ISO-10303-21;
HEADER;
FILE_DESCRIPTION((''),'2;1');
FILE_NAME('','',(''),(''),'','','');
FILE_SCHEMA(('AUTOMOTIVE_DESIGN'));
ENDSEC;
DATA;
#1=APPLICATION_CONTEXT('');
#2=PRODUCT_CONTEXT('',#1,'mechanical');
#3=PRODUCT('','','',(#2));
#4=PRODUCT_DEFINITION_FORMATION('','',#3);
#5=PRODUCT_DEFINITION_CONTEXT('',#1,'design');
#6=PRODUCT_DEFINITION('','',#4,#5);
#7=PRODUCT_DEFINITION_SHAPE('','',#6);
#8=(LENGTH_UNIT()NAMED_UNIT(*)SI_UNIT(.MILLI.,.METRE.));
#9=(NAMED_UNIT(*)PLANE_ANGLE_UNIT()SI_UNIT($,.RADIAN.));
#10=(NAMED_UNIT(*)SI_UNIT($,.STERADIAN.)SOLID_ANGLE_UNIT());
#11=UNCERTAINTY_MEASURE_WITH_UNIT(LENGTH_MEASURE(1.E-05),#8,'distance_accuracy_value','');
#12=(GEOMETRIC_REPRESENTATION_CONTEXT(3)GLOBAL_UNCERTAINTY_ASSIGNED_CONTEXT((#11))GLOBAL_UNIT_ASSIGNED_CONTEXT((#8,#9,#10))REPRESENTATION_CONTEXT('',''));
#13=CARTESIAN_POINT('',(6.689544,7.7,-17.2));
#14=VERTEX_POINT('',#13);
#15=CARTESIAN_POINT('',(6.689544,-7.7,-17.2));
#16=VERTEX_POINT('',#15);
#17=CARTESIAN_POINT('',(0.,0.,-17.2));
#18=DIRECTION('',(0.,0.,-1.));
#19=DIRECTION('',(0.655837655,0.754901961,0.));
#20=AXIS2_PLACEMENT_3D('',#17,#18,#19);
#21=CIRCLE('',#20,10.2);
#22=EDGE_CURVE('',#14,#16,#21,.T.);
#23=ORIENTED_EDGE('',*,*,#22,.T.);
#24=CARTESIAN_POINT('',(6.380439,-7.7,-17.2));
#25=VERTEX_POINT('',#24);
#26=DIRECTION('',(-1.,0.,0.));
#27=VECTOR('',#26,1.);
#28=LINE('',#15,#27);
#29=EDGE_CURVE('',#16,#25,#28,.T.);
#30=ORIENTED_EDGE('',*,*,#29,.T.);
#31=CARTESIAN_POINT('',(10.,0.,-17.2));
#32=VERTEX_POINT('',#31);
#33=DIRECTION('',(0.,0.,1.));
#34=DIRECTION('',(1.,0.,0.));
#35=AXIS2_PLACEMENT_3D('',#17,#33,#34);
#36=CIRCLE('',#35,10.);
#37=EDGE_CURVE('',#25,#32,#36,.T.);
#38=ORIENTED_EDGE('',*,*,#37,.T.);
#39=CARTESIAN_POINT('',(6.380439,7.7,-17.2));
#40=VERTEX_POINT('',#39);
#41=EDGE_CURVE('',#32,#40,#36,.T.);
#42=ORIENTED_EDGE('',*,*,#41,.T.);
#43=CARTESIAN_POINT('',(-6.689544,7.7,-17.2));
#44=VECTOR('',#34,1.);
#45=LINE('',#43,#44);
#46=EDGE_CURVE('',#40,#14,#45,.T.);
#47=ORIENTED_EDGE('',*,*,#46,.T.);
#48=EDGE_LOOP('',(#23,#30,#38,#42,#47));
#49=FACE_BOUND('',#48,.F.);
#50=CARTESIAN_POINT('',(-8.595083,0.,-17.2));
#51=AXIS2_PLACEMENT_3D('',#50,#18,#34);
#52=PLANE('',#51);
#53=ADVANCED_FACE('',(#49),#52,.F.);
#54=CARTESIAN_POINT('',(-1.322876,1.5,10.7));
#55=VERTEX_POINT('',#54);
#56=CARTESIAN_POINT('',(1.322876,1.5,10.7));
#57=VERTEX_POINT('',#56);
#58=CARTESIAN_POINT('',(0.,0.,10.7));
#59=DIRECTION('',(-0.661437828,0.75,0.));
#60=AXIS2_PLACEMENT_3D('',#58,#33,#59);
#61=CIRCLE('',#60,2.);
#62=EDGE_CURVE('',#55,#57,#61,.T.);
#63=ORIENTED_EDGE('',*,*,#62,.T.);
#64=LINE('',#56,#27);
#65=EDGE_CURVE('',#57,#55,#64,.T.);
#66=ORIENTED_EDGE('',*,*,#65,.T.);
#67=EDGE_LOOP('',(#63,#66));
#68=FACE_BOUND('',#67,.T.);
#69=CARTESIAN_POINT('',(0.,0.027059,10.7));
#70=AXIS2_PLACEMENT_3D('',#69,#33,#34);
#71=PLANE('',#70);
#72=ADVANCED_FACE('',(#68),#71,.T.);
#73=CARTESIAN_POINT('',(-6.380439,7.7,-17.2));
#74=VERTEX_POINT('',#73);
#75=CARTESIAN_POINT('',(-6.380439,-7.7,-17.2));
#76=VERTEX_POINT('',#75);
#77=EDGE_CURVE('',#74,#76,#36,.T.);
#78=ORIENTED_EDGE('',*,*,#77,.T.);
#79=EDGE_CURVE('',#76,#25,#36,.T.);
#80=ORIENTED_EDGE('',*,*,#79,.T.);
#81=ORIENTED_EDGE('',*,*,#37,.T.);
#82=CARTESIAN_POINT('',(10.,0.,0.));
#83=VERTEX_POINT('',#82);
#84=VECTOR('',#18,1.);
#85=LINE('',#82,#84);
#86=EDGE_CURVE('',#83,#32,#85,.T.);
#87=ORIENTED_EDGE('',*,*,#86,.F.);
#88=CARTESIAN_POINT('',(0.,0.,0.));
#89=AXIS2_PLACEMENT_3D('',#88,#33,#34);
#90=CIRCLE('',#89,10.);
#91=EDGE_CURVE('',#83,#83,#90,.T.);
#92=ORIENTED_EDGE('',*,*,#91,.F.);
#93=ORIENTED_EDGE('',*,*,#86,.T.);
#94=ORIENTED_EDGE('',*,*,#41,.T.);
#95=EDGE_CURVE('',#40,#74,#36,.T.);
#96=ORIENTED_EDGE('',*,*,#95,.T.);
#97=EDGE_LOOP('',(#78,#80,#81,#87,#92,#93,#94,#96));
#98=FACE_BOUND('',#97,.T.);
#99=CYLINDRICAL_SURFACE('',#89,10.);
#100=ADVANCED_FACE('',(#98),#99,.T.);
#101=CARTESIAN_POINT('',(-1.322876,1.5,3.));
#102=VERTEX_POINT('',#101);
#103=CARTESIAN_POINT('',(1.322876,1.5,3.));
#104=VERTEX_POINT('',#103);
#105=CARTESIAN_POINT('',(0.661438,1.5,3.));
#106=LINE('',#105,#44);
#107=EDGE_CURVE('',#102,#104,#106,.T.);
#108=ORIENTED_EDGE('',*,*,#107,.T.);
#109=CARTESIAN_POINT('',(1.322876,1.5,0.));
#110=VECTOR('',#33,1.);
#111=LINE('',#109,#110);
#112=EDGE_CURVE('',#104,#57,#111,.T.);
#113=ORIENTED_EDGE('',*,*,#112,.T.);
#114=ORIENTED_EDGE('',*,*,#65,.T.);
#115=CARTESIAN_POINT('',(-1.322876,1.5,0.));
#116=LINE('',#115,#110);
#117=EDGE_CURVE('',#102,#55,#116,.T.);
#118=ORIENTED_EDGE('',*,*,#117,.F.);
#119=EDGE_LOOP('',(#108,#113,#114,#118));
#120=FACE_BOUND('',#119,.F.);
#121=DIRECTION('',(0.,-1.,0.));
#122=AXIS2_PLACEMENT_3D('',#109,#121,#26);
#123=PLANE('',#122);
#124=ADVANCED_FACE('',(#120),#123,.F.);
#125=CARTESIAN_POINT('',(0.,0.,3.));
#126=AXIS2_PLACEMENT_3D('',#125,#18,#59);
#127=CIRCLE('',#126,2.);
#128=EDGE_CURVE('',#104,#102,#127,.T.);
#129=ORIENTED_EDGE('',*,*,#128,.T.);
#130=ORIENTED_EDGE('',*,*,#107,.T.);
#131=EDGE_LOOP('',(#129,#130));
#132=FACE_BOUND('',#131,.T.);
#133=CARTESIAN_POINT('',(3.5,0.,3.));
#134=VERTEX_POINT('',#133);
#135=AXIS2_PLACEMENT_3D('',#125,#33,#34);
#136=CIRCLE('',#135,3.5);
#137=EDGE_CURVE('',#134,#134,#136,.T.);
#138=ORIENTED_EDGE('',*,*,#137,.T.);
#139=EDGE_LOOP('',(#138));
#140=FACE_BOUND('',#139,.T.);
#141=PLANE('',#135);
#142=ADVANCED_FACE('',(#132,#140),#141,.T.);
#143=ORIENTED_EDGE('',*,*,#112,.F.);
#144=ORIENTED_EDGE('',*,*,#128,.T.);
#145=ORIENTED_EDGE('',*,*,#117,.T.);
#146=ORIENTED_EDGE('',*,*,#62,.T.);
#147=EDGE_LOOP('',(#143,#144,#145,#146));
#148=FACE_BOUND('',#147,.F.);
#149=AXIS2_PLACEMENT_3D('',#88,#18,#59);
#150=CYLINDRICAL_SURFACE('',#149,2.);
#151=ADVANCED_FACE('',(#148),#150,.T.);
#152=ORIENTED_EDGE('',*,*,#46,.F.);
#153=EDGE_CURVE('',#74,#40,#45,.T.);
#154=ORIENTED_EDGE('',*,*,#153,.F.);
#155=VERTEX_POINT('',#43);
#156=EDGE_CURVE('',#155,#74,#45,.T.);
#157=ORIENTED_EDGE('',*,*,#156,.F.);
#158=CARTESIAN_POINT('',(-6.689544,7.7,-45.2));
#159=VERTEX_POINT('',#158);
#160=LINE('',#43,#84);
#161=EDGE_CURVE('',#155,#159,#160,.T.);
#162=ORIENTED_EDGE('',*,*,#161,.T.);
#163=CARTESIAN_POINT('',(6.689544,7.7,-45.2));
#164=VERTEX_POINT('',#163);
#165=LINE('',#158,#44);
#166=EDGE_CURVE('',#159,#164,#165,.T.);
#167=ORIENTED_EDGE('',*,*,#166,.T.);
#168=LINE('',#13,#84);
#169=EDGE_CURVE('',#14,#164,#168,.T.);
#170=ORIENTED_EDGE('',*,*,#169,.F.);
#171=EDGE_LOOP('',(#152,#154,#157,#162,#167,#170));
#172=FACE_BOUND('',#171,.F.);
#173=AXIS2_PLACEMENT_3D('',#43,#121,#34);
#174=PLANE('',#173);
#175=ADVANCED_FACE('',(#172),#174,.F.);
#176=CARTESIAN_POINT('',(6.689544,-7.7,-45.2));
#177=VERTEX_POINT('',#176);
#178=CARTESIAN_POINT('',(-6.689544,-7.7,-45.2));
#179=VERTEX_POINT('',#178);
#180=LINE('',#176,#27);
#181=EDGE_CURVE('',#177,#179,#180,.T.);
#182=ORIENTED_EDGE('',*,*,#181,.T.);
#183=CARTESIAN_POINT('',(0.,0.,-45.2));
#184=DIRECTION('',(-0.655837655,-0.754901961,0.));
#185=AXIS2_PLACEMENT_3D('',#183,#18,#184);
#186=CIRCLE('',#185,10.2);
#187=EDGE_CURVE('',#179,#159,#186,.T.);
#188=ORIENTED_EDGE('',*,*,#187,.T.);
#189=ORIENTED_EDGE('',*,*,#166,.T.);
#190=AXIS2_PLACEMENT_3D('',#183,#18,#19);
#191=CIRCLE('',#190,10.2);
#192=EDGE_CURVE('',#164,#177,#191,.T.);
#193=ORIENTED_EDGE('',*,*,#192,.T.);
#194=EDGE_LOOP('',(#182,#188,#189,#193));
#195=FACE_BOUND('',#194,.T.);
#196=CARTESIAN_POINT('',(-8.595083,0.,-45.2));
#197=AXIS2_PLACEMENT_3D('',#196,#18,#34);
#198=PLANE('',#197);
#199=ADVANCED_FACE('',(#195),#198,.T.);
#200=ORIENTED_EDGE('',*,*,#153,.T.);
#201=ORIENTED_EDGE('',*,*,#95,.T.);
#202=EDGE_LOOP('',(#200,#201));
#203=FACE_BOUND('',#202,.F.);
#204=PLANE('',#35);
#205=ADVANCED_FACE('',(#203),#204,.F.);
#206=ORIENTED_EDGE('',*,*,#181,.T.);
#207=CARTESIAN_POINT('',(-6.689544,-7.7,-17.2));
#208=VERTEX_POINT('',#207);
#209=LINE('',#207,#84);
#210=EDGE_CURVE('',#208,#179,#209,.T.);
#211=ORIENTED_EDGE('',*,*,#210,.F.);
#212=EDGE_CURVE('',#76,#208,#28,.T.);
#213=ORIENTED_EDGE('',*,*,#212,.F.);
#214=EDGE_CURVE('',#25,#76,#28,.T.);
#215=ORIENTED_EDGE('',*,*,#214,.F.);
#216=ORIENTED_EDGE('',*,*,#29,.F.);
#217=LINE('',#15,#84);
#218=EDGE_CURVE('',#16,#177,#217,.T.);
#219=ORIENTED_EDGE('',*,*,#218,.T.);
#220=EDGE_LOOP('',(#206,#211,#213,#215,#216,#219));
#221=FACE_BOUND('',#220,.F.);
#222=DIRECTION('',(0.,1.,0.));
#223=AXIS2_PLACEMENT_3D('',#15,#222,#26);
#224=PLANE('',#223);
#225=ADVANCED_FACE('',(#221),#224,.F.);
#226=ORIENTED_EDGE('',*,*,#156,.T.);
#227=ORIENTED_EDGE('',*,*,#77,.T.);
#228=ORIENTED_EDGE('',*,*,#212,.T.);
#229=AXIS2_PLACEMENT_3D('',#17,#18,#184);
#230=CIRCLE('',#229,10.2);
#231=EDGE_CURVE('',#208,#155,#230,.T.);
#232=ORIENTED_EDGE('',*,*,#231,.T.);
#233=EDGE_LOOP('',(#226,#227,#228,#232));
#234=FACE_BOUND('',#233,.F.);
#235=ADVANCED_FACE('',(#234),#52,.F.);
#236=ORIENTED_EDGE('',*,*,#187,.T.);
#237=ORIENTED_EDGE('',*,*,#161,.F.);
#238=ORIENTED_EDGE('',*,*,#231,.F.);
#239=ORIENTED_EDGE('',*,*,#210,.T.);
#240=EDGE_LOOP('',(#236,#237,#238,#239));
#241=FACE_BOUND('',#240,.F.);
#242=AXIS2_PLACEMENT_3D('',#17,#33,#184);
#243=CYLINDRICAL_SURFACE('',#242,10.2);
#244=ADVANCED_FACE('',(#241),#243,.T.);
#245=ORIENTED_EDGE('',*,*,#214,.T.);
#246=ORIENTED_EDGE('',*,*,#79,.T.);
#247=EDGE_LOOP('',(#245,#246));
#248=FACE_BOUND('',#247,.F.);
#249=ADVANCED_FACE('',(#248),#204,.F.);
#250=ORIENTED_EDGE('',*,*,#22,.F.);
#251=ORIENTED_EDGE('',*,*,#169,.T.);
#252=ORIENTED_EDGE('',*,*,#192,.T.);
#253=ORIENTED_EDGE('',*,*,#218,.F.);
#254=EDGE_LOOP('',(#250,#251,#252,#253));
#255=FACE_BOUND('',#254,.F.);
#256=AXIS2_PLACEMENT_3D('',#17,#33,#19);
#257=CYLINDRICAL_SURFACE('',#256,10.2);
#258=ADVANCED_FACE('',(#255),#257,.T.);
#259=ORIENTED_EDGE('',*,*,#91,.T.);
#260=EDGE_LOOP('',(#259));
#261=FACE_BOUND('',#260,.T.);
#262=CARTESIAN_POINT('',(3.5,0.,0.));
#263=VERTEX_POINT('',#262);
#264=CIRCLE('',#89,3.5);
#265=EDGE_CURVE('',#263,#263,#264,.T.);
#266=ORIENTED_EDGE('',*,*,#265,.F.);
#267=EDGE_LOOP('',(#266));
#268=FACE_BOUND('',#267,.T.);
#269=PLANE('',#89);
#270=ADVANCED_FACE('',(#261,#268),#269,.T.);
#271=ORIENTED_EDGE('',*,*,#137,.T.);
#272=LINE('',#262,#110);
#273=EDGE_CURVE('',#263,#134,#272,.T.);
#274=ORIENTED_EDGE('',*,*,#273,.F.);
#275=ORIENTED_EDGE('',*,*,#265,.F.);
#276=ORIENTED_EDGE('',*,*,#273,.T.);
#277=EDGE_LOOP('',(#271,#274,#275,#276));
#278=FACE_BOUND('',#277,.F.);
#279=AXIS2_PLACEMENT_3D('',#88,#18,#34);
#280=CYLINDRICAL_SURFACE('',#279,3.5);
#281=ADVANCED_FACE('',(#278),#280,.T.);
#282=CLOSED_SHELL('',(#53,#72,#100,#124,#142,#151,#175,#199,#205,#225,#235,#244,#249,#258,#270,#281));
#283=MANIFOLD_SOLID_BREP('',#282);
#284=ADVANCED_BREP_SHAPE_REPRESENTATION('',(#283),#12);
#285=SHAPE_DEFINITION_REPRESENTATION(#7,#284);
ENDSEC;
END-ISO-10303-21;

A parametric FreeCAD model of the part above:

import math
import FreeCAD as App
import Part
import Sketcher

V = App.Vector
Q = App.Units.Quantity

doc = App.newDocument("Part")
body = doc.addObject("PartDesign::Body", "Body")

# Sketch on XY plane
sketch1 = body.newObject("Sketcher::SketchObject", "Sketch")
sketch1.AttachmentSupport = (doc.getObject("XY_Plane"), [""])
sketch1.MapMode = "FlatFace"
sketch1.addGeometry(Part.Circle(V(0, 0, 0), V(0, 0, 1), 10), False)
sketch1.addConstraint([
    Sketcher.Constraint("Coincident", 0, 3, -1, 1),
    Sketcher.Constraint("Diameter", 0, Q("20 mm")),
])
pad1 = body.newObject("PartDesign::Pad", "Pad")
pad1.Profile = sketch1
pad1.Length = 17.2
pad1.Reversed = True

# Sketch on XY plane
sketch2 = body.newObject("Sketcher::SketchObject", "Sketch001")
sketch2.AttachmentSupport = (doc.getObject("XY_Plane"), [""])
sketch2.MapMode = "FlatFace"
sketch2.addGeometry(Part.Circle(V(0, 0, 0), V(0, 0, 1), 3.5), False)
sketch2.addConstraint([
    Sketcher.Constraint("Coincident", 0, 3, -1, 1),
    Sketcher.Constraint("Diameter", 0, Q("7 mm")),
])
pad2 = body.newObject("PartDesign::Pad", "Pad001")
pad2.Profile = sketch2
pad2.Length = 3

# Sketch on XY plane
sketch3 = body.newObject("Sketcher::SketchObject", "Sketch002")
sketch3.AttachmentSupport = (doc.getObject("XY_Plane"), [""])
sketch3.MapMode = "FlatFace"
sketch3.addGeometry([
    Part.LineSegment(V(1.322876, 1.5, 0), V(-1.322876, 1.5, 0)),
    Part.ArcOfCircle(Part.Circle(V(0, 0, 0), V(0, 0, 1), 2), math.radians(131.409622), math.radians(408.590378)),
], False)
sketch3.addConstraint([
    Sketcher.Constraint("Coincident", 0, 1, 1, 2),
    Sketcher.Constraint("Coincident", 1, 1, 0, 2),
    Sketcher.Constraint("Horizontal", 0),
    Sketcher.Constraint("Coincident", 1, 3, -1, 1),
    Sketcher.Constraint("Radius", 1, Q("2 mm")),
    Sketcher.Constraint("DistanceY", -1, 1, 0, 1, Q("1.5 mm")),
])
pad3 = body.newObject("PartDesign::Pad", "Pad002")
pad3.Profile = sketch3
pad3.Length = 10.7

# Sketch on XY plane
sketch4 = body.newObject("Sketcher::SketchObject", "Sketch003")
sketch4.AttachmentSupport = (doc.getObject("XY_Plane"), [""])
sketch4.MapMode = "FlatFace"
sketch4.AttachmentOffset = App.Placement(V(0, 0, -17.2), App.Rotation())
sketch4.addGeometry([
    Part.ArcOfCircle(Part.Circle(V(0, 0, 0), V(0, 0, 1), 10.2), math.radians(130.983196), math.radians(229.016804)),
    Part.LineSegment(V(-6.689544, 7.7, 0), V(6.689544, 7.7, 0)),
    Part.ArcOfCircle(Part.Circle(V(0, 0, 0), V(0, 0, 1), 10.2), math.radians(-49.016804), math.radians(49.016804)),
    Part.LineSegment(V(6.689544, -7.7, 0), V(-6.689544, -7.7, 0)),
], False)
sketch4.addConstraint([
    Sketcher.Constraint("Coincident", 0, 1, 1, 1),
    Sketcher.Constraint("Coincident", 1, 2, 2, 2),
    Sketcher.Constraint("Coincident", 2, 1, 3, 1),
    Sketcher.Constraint("Coincident", 3, 2, 0, 2),
    Sketcher.Constraint("Horizontal", 1),
    Sketcher.Constraint("Horizontal", 3),
    Sketcher.Constraint("Coincident", 0, 3, -1, 1),
    Sketcher.Constraint("Coincident", 2, 3, -1, 1),
    Sketcher.Constraint("Equal", 0, 2),
    Sketcher.Constraint("Vertical", 1, 2, 2, 1),
    Sketcher.Constraint("Radius", 0, Q("10.2 mm")),
    Sketcher.Constraint("DistanceY", -1, 1, 0, 1, Q("7.7 mm")),
])
pad4 = body.newObject("PartDesign::Pad", "Pad003")
pad4.Profile = sketch4
pad4.Length = 28
pad4.Reversed = True

doc.recompute()
